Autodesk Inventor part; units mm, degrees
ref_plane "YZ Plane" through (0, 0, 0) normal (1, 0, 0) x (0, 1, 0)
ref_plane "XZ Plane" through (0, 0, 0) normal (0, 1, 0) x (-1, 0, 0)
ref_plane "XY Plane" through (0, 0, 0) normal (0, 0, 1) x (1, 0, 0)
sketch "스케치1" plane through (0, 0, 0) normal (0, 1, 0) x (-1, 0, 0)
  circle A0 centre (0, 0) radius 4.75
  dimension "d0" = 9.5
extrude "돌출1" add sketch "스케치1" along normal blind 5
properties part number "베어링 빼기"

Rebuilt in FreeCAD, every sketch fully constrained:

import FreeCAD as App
import Part
import Sketcher
from FreeCAD import Vector
Q = App.Units.Quantity

doc = App.newDocument("Part")
params = doc.addObject("Spreadsheet::Sheet", "Params")
for row, (alias, value) in enumerate([
    ("sketch1_diameter", "9.5 mm"),
    ("pad1_length", "5 mm"),
], start=1):
    params.set(f"A{row}", alias)
    params.set(f"B{row}", "=" + value)
    params.setAlias(f"B{row}", alias)

body = doc.addObject("PartDesign::Body", "Body")

sketch1 = doc.addObject("Sketcher::SketchObject", "Sketch")
body.addObject(sketch1)
sketch1.AttachmentSupport = (doc.XZ_Plane, [""])
sketch1.MapMode = "FlatFace"
sketch1.addGeometry(Part.Circle(Vector(0, 0, 0), Vector(0, 0, 1), 4.8), False)
sketch1.addConstraint([
    Sketcher.Constraint("Coincident", 0, 3, -1, 1),
    Sketcher.Constraint("Diameter", 0, Q("9.5 mm")),
])
sketch1.setExpression("Constraints[1]", "Params.sketch1_diameter")
pad1 = doc.addObject("PartDesign::Pad", "Pad")
body.addObject(pad1)
pad1.Profile = sketch1
pad1.setExpression("Length", "Params.pad1_length")
pad1.Reversed = True

doc.recompute()
